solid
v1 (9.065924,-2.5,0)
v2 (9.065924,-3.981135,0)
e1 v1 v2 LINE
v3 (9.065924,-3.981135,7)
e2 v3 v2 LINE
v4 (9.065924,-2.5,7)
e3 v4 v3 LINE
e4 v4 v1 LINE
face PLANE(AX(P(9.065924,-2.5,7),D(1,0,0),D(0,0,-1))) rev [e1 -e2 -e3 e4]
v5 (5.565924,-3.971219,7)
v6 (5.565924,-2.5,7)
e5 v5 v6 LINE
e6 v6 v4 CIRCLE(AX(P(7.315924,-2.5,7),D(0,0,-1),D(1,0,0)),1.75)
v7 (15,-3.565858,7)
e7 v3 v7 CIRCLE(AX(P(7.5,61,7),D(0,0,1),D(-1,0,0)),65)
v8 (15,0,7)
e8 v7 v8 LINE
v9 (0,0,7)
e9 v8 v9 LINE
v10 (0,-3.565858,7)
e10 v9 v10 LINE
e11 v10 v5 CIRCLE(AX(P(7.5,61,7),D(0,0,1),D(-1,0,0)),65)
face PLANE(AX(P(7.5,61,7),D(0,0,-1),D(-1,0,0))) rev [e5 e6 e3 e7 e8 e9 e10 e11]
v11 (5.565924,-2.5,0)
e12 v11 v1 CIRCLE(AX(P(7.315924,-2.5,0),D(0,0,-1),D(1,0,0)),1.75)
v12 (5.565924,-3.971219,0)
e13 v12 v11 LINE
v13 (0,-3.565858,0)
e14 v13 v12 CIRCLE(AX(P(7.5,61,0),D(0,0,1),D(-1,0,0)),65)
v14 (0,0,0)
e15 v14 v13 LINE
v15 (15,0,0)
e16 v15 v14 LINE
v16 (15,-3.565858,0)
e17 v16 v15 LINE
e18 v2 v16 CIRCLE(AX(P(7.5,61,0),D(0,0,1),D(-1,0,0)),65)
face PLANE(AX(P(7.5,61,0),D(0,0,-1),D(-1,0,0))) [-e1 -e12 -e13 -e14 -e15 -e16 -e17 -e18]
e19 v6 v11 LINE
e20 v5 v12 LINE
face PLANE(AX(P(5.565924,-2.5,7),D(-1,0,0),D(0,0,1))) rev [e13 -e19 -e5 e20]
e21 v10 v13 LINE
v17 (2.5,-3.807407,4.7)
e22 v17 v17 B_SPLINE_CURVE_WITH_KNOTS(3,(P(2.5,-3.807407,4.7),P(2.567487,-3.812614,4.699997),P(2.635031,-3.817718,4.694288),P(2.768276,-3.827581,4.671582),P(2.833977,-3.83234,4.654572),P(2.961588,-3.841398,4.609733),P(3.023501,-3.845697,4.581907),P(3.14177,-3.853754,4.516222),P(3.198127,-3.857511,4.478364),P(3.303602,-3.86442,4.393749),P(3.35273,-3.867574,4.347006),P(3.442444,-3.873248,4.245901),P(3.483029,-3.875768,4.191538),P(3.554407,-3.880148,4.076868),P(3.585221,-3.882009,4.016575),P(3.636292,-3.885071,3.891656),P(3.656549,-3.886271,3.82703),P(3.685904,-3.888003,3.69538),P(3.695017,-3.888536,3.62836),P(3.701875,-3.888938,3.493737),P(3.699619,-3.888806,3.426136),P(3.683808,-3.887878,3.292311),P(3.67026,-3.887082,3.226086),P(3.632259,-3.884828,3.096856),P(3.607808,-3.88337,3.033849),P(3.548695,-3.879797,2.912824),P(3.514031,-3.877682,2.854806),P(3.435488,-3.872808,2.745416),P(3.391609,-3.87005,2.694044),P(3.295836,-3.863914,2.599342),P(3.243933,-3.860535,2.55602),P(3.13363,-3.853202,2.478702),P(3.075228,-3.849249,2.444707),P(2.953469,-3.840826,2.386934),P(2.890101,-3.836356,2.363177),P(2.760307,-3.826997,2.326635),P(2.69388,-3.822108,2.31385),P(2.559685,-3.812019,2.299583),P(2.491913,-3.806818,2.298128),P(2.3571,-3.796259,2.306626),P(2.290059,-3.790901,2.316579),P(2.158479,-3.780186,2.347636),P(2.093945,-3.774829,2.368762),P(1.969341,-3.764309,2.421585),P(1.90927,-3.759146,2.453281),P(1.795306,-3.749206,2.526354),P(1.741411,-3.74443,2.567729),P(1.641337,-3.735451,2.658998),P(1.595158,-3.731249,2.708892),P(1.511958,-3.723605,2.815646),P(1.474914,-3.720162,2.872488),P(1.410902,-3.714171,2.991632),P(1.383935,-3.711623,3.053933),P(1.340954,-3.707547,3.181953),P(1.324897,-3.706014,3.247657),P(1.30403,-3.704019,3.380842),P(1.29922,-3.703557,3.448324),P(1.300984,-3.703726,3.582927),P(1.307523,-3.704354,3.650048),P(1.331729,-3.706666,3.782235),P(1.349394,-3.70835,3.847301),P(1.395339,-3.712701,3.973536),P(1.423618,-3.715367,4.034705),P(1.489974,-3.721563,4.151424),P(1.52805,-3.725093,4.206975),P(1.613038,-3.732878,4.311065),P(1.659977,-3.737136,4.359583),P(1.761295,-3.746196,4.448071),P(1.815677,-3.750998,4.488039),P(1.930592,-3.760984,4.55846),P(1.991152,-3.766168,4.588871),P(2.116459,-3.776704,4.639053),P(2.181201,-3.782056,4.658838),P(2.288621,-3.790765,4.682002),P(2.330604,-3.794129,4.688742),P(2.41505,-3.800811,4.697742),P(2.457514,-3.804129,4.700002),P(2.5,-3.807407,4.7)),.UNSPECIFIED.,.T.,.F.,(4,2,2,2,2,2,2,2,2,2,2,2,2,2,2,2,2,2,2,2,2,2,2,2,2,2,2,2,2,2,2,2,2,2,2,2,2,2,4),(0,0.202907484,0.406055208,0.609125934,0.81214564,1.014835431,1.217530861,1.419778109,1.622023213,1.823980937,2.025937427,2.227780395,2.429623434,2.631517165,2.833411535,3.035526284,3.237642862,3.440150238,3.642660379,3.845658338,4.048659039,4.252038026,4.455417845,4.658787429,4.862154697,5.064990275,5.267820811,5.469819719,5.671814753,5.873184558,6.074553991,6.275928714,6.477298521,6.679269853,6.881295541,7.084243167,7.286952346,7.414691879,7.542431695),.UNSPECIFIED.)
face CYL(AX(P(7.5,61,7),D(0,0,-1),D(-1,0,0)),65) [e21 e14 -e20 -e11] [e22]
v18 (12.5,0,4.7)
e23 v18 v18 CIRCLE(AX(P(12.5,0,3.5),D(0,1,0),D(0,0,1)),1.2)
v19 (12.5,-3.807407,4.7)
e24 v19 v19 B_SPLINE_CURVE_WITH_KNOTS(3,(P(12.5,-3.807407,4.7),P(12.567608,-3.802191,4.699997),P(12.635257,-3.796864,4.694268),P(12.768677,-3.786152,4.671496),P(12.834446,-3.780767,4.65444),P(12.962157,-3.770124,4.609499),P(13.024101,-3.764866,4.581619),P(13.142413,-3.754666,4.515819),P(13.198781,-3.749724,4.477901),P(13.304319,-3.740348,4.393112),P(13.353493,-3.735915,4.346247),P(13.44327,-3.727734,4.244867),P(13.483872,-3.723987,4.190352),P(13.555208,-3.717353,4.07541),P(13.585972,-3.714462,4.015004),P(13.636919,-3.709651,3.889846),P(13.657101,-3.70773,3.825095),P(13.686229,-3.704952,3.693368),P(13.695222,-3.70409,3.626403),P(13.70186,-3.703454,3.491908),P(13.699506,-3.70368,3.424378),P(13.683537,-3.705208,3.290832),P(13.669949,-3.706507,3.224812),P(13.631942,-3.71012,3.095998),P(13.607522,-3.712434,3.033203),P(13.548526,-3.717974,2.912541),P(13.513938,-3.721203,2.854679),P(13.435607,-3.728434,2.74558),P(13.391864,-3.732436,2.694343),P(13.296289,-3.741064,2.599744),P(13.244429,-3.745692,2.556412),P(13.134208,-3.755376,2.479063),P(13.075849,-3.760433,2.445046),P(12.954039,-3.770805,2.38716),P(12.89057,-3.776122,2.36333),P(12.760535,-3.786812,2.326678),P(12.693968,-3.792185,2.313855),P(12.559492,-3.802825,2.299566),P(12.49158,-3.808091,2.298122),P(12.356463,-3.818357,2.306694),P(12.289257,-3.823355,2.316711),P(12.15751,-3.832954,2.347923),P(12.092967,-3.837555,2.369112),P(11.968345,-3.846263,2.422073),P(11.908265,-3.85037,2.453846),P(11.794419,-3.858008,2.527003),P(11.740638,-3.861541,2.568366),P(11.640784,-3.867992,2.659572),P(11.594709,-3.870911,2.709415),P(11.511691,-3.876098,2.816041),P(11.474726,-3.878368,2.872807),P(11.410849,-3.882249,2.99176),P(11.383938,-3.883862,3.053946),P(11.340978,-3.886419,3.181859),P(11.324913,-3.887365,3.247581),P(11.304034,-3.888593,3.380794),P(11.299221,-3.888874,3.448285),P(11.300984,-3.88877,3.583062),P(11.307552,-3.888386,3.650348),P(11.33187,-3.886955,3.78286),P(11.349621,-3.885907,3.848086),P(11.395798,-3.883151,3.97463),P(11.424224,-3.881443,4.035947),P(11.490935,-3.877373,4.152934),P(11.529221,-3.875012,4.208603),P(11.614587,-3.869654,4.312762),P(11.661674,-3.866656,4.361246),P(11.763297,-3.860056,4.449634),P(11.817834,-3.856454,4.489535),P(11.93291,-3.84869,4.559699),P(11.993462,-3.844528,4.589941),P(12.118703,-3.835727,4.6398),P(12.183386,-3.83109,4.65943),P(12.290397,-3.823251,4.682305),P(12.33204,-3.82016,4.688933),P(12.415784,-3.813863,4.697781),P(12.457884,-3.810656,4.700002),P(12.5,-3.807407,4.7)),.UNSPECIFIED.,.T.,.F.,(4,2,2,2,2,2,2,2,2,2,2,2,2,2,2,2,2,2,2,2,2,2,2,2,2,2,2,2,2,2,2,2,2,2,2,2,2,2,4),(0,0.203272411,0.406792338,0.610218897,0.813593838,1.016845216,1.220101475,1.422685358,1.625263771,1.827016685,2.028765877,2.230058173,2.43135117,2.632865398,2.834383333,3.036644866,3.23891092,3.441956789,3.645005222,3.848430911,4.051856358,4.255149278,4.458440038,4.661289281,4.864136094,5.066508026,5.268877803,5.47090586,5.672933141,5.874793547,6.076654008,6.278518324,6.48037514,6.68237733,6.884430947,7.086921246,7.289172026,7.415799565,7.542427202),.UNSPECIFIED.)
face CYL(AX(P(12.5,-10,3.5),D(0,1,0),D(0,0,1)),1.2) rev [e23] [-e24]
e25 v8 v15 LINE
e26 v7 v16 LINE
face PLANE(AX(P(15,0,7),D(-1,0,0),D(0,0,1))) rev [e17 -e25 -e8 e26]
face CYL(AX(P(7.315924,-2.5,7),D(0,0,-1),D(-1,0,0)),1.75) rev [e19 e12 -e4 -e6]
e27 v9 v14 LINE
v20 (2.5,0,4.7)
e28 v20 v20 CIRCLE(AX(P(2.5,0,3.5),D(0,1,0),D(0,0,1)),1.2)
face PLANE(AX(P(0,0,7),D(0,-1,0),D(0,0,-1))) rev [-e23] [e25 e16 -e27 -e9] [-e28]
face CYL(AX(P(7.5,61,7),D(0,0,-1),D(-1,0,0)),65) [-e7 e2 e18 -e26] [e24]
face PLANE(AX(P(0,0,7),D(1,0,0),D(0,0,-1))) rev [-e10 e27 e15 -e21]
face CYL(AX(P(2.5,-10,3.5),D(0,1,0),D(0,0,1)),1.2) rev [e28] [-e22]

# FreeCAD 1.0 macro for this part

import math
import FreeCAD as App
import Part
import Sketcher

V = App.Vector

doc = App.newDocument("Part")
body = doc.addObject("PartDesign::Body", "Body")

# Sketch on XY plane
sketch1 = body.newObject("Sketcher::SketchObject", "Sketch")
sketch1.AttachmentSupport = (doc.getObject("XY_Plane"), [""])
sketch1.MapMode = "FlatFace"
sketch1.addGeometry([
    Part.LineSegment(V(15, 0, 0), V(0, 0, 0)),  # 0
    Part.LineSegment(V(0, 0, 0), V(0, -3.6, 0)),  # 1
    Part.ArcOfCircle(Part.Circle(V(7.5, 61, 0), V(0, 0, 1), 65), math.radians(-96.63), math.radians(-91.71)),  # 2
    Part.LineSegment(V(5.6, -4, 0), V(5.6, -2.5, 0)),  # 3
    Part.ArcOfCircle(Part.Circle(V(7.3, -2.5, 0), V(0, 0, 1), 1.8), math.radians(0), math.radians(180)),  # 4
    Part.LineSegment(V(9.1, -2.5, 0), V(9.1, -4, 0)),  # 5
    Part.ArcOfCircle(Part.Circle(V(7.5, 61, 0), V(0, 0, 1), 65), math.radians(-88.62), math.radians(-83.37)),  # 6
    Part.LineSegment(V(15, -3.6, 0), V(15, 0, 0)),  # 7
], False)
sketch1.addConstraint([
    Sketcher.Constraint("Coincident", 0, 2, 1, 1),
    Sketcher.Constraint("Coincident", 1, 2, 2, 1),
    Sketcher.Constraint("Coincident", 2, 2, 3, 1),
    Sketcher.Constraint("Tangent", 3, 2, 4, 2),
    Sketcher.Constraint("Tangent", 4, 1, 5, 1),
    Sketcher.Constraint("Coincident", 5, 2, 6, 1),
    Sketcher.Constraint("Coincident", 6, 2, 7, 1),
    Sketcher.Constraint("Coincident", 7, 2, 0, 1),
    Sketcher.Constraint("Horizontal", 0),
    Sketcher.Constraint("Vertical", 1),
    Sketcher.Constraint("Vertical", 3),
    Sketcher.Constraint("Vertical", 5),
    Sketcher.Constraint("Vertical", 7),
    Sketcher.Constraint("Coincident", 0, 2, -1, 1),
    Sketcher.Constraint("Coincident", 6, 3, 2, 3),
    Sketcher.Constraint("Equal", 2, 6),
    Sketcher.Constraint("Horizontal", 1, 2, 6, 2),
    Sketcher.Constraint("Radius", 2, 65.0),
    Sketcher.Constraint("DistanceX", 0, 2, 0, 1, 15.0),
    Sketcher.Constraint("Radius", 4, 1.75),
    Sketcher.Constraint("DistanceY", -1, 1, 2, 3, 61.0),
    Sketcher.Constraint("DistanceY", 4, 3, -1, 1, 2.5),
    Sketcher.Constraint("DistanceY", 3, 1, 3, 2, 1.471219),
])
pad1 = body.newObject("PartDesign::Pad", "Pad")
pad1.Profile = sketch1
pad1.Length = 7

# Sketch on XZ plane
sketch2 = body.newObject("Sketcher::SketchObject", "Sketch001")
sketch2.AttachmentSupport = (doc.getObject("XZ_Plane"), [""])
sketch2.MapMode = "FlatFace"
sketch2.addGeometry([
    Part.Circle(V(12.5, 3.5, 0), V(0, 0, 1), 1.2),
    Part.Circle(V(2.5, 3.5, 0), V(0, 0, 1), 1.2),
], False)
sketch2.addConstraint([
    Sketcher.Constraint("Equal", 0, 1),
    Sketcher.Constraint("Horizontal", 0, 3, 1, 3),
    Sketcher.Constraint("Diameter", 0, 2.4),
    Sketcher.Constraint("DistanceX", 1, 3, 0, 3, 10.0),
    Sketcher.Constraint("DistanceX", -1, 1, 0, 3, 12.5),
    Sketcher.Constraint("DistanceY", -1, 1, 0, 3, 3.5),
])
pocket1 = body.newObject("PartDesign::Pocket", "Pocket")
pocket1.Profile = sketch2
pocket1.Length = 10
pocket1.Reversed = True

doc.recompute()
